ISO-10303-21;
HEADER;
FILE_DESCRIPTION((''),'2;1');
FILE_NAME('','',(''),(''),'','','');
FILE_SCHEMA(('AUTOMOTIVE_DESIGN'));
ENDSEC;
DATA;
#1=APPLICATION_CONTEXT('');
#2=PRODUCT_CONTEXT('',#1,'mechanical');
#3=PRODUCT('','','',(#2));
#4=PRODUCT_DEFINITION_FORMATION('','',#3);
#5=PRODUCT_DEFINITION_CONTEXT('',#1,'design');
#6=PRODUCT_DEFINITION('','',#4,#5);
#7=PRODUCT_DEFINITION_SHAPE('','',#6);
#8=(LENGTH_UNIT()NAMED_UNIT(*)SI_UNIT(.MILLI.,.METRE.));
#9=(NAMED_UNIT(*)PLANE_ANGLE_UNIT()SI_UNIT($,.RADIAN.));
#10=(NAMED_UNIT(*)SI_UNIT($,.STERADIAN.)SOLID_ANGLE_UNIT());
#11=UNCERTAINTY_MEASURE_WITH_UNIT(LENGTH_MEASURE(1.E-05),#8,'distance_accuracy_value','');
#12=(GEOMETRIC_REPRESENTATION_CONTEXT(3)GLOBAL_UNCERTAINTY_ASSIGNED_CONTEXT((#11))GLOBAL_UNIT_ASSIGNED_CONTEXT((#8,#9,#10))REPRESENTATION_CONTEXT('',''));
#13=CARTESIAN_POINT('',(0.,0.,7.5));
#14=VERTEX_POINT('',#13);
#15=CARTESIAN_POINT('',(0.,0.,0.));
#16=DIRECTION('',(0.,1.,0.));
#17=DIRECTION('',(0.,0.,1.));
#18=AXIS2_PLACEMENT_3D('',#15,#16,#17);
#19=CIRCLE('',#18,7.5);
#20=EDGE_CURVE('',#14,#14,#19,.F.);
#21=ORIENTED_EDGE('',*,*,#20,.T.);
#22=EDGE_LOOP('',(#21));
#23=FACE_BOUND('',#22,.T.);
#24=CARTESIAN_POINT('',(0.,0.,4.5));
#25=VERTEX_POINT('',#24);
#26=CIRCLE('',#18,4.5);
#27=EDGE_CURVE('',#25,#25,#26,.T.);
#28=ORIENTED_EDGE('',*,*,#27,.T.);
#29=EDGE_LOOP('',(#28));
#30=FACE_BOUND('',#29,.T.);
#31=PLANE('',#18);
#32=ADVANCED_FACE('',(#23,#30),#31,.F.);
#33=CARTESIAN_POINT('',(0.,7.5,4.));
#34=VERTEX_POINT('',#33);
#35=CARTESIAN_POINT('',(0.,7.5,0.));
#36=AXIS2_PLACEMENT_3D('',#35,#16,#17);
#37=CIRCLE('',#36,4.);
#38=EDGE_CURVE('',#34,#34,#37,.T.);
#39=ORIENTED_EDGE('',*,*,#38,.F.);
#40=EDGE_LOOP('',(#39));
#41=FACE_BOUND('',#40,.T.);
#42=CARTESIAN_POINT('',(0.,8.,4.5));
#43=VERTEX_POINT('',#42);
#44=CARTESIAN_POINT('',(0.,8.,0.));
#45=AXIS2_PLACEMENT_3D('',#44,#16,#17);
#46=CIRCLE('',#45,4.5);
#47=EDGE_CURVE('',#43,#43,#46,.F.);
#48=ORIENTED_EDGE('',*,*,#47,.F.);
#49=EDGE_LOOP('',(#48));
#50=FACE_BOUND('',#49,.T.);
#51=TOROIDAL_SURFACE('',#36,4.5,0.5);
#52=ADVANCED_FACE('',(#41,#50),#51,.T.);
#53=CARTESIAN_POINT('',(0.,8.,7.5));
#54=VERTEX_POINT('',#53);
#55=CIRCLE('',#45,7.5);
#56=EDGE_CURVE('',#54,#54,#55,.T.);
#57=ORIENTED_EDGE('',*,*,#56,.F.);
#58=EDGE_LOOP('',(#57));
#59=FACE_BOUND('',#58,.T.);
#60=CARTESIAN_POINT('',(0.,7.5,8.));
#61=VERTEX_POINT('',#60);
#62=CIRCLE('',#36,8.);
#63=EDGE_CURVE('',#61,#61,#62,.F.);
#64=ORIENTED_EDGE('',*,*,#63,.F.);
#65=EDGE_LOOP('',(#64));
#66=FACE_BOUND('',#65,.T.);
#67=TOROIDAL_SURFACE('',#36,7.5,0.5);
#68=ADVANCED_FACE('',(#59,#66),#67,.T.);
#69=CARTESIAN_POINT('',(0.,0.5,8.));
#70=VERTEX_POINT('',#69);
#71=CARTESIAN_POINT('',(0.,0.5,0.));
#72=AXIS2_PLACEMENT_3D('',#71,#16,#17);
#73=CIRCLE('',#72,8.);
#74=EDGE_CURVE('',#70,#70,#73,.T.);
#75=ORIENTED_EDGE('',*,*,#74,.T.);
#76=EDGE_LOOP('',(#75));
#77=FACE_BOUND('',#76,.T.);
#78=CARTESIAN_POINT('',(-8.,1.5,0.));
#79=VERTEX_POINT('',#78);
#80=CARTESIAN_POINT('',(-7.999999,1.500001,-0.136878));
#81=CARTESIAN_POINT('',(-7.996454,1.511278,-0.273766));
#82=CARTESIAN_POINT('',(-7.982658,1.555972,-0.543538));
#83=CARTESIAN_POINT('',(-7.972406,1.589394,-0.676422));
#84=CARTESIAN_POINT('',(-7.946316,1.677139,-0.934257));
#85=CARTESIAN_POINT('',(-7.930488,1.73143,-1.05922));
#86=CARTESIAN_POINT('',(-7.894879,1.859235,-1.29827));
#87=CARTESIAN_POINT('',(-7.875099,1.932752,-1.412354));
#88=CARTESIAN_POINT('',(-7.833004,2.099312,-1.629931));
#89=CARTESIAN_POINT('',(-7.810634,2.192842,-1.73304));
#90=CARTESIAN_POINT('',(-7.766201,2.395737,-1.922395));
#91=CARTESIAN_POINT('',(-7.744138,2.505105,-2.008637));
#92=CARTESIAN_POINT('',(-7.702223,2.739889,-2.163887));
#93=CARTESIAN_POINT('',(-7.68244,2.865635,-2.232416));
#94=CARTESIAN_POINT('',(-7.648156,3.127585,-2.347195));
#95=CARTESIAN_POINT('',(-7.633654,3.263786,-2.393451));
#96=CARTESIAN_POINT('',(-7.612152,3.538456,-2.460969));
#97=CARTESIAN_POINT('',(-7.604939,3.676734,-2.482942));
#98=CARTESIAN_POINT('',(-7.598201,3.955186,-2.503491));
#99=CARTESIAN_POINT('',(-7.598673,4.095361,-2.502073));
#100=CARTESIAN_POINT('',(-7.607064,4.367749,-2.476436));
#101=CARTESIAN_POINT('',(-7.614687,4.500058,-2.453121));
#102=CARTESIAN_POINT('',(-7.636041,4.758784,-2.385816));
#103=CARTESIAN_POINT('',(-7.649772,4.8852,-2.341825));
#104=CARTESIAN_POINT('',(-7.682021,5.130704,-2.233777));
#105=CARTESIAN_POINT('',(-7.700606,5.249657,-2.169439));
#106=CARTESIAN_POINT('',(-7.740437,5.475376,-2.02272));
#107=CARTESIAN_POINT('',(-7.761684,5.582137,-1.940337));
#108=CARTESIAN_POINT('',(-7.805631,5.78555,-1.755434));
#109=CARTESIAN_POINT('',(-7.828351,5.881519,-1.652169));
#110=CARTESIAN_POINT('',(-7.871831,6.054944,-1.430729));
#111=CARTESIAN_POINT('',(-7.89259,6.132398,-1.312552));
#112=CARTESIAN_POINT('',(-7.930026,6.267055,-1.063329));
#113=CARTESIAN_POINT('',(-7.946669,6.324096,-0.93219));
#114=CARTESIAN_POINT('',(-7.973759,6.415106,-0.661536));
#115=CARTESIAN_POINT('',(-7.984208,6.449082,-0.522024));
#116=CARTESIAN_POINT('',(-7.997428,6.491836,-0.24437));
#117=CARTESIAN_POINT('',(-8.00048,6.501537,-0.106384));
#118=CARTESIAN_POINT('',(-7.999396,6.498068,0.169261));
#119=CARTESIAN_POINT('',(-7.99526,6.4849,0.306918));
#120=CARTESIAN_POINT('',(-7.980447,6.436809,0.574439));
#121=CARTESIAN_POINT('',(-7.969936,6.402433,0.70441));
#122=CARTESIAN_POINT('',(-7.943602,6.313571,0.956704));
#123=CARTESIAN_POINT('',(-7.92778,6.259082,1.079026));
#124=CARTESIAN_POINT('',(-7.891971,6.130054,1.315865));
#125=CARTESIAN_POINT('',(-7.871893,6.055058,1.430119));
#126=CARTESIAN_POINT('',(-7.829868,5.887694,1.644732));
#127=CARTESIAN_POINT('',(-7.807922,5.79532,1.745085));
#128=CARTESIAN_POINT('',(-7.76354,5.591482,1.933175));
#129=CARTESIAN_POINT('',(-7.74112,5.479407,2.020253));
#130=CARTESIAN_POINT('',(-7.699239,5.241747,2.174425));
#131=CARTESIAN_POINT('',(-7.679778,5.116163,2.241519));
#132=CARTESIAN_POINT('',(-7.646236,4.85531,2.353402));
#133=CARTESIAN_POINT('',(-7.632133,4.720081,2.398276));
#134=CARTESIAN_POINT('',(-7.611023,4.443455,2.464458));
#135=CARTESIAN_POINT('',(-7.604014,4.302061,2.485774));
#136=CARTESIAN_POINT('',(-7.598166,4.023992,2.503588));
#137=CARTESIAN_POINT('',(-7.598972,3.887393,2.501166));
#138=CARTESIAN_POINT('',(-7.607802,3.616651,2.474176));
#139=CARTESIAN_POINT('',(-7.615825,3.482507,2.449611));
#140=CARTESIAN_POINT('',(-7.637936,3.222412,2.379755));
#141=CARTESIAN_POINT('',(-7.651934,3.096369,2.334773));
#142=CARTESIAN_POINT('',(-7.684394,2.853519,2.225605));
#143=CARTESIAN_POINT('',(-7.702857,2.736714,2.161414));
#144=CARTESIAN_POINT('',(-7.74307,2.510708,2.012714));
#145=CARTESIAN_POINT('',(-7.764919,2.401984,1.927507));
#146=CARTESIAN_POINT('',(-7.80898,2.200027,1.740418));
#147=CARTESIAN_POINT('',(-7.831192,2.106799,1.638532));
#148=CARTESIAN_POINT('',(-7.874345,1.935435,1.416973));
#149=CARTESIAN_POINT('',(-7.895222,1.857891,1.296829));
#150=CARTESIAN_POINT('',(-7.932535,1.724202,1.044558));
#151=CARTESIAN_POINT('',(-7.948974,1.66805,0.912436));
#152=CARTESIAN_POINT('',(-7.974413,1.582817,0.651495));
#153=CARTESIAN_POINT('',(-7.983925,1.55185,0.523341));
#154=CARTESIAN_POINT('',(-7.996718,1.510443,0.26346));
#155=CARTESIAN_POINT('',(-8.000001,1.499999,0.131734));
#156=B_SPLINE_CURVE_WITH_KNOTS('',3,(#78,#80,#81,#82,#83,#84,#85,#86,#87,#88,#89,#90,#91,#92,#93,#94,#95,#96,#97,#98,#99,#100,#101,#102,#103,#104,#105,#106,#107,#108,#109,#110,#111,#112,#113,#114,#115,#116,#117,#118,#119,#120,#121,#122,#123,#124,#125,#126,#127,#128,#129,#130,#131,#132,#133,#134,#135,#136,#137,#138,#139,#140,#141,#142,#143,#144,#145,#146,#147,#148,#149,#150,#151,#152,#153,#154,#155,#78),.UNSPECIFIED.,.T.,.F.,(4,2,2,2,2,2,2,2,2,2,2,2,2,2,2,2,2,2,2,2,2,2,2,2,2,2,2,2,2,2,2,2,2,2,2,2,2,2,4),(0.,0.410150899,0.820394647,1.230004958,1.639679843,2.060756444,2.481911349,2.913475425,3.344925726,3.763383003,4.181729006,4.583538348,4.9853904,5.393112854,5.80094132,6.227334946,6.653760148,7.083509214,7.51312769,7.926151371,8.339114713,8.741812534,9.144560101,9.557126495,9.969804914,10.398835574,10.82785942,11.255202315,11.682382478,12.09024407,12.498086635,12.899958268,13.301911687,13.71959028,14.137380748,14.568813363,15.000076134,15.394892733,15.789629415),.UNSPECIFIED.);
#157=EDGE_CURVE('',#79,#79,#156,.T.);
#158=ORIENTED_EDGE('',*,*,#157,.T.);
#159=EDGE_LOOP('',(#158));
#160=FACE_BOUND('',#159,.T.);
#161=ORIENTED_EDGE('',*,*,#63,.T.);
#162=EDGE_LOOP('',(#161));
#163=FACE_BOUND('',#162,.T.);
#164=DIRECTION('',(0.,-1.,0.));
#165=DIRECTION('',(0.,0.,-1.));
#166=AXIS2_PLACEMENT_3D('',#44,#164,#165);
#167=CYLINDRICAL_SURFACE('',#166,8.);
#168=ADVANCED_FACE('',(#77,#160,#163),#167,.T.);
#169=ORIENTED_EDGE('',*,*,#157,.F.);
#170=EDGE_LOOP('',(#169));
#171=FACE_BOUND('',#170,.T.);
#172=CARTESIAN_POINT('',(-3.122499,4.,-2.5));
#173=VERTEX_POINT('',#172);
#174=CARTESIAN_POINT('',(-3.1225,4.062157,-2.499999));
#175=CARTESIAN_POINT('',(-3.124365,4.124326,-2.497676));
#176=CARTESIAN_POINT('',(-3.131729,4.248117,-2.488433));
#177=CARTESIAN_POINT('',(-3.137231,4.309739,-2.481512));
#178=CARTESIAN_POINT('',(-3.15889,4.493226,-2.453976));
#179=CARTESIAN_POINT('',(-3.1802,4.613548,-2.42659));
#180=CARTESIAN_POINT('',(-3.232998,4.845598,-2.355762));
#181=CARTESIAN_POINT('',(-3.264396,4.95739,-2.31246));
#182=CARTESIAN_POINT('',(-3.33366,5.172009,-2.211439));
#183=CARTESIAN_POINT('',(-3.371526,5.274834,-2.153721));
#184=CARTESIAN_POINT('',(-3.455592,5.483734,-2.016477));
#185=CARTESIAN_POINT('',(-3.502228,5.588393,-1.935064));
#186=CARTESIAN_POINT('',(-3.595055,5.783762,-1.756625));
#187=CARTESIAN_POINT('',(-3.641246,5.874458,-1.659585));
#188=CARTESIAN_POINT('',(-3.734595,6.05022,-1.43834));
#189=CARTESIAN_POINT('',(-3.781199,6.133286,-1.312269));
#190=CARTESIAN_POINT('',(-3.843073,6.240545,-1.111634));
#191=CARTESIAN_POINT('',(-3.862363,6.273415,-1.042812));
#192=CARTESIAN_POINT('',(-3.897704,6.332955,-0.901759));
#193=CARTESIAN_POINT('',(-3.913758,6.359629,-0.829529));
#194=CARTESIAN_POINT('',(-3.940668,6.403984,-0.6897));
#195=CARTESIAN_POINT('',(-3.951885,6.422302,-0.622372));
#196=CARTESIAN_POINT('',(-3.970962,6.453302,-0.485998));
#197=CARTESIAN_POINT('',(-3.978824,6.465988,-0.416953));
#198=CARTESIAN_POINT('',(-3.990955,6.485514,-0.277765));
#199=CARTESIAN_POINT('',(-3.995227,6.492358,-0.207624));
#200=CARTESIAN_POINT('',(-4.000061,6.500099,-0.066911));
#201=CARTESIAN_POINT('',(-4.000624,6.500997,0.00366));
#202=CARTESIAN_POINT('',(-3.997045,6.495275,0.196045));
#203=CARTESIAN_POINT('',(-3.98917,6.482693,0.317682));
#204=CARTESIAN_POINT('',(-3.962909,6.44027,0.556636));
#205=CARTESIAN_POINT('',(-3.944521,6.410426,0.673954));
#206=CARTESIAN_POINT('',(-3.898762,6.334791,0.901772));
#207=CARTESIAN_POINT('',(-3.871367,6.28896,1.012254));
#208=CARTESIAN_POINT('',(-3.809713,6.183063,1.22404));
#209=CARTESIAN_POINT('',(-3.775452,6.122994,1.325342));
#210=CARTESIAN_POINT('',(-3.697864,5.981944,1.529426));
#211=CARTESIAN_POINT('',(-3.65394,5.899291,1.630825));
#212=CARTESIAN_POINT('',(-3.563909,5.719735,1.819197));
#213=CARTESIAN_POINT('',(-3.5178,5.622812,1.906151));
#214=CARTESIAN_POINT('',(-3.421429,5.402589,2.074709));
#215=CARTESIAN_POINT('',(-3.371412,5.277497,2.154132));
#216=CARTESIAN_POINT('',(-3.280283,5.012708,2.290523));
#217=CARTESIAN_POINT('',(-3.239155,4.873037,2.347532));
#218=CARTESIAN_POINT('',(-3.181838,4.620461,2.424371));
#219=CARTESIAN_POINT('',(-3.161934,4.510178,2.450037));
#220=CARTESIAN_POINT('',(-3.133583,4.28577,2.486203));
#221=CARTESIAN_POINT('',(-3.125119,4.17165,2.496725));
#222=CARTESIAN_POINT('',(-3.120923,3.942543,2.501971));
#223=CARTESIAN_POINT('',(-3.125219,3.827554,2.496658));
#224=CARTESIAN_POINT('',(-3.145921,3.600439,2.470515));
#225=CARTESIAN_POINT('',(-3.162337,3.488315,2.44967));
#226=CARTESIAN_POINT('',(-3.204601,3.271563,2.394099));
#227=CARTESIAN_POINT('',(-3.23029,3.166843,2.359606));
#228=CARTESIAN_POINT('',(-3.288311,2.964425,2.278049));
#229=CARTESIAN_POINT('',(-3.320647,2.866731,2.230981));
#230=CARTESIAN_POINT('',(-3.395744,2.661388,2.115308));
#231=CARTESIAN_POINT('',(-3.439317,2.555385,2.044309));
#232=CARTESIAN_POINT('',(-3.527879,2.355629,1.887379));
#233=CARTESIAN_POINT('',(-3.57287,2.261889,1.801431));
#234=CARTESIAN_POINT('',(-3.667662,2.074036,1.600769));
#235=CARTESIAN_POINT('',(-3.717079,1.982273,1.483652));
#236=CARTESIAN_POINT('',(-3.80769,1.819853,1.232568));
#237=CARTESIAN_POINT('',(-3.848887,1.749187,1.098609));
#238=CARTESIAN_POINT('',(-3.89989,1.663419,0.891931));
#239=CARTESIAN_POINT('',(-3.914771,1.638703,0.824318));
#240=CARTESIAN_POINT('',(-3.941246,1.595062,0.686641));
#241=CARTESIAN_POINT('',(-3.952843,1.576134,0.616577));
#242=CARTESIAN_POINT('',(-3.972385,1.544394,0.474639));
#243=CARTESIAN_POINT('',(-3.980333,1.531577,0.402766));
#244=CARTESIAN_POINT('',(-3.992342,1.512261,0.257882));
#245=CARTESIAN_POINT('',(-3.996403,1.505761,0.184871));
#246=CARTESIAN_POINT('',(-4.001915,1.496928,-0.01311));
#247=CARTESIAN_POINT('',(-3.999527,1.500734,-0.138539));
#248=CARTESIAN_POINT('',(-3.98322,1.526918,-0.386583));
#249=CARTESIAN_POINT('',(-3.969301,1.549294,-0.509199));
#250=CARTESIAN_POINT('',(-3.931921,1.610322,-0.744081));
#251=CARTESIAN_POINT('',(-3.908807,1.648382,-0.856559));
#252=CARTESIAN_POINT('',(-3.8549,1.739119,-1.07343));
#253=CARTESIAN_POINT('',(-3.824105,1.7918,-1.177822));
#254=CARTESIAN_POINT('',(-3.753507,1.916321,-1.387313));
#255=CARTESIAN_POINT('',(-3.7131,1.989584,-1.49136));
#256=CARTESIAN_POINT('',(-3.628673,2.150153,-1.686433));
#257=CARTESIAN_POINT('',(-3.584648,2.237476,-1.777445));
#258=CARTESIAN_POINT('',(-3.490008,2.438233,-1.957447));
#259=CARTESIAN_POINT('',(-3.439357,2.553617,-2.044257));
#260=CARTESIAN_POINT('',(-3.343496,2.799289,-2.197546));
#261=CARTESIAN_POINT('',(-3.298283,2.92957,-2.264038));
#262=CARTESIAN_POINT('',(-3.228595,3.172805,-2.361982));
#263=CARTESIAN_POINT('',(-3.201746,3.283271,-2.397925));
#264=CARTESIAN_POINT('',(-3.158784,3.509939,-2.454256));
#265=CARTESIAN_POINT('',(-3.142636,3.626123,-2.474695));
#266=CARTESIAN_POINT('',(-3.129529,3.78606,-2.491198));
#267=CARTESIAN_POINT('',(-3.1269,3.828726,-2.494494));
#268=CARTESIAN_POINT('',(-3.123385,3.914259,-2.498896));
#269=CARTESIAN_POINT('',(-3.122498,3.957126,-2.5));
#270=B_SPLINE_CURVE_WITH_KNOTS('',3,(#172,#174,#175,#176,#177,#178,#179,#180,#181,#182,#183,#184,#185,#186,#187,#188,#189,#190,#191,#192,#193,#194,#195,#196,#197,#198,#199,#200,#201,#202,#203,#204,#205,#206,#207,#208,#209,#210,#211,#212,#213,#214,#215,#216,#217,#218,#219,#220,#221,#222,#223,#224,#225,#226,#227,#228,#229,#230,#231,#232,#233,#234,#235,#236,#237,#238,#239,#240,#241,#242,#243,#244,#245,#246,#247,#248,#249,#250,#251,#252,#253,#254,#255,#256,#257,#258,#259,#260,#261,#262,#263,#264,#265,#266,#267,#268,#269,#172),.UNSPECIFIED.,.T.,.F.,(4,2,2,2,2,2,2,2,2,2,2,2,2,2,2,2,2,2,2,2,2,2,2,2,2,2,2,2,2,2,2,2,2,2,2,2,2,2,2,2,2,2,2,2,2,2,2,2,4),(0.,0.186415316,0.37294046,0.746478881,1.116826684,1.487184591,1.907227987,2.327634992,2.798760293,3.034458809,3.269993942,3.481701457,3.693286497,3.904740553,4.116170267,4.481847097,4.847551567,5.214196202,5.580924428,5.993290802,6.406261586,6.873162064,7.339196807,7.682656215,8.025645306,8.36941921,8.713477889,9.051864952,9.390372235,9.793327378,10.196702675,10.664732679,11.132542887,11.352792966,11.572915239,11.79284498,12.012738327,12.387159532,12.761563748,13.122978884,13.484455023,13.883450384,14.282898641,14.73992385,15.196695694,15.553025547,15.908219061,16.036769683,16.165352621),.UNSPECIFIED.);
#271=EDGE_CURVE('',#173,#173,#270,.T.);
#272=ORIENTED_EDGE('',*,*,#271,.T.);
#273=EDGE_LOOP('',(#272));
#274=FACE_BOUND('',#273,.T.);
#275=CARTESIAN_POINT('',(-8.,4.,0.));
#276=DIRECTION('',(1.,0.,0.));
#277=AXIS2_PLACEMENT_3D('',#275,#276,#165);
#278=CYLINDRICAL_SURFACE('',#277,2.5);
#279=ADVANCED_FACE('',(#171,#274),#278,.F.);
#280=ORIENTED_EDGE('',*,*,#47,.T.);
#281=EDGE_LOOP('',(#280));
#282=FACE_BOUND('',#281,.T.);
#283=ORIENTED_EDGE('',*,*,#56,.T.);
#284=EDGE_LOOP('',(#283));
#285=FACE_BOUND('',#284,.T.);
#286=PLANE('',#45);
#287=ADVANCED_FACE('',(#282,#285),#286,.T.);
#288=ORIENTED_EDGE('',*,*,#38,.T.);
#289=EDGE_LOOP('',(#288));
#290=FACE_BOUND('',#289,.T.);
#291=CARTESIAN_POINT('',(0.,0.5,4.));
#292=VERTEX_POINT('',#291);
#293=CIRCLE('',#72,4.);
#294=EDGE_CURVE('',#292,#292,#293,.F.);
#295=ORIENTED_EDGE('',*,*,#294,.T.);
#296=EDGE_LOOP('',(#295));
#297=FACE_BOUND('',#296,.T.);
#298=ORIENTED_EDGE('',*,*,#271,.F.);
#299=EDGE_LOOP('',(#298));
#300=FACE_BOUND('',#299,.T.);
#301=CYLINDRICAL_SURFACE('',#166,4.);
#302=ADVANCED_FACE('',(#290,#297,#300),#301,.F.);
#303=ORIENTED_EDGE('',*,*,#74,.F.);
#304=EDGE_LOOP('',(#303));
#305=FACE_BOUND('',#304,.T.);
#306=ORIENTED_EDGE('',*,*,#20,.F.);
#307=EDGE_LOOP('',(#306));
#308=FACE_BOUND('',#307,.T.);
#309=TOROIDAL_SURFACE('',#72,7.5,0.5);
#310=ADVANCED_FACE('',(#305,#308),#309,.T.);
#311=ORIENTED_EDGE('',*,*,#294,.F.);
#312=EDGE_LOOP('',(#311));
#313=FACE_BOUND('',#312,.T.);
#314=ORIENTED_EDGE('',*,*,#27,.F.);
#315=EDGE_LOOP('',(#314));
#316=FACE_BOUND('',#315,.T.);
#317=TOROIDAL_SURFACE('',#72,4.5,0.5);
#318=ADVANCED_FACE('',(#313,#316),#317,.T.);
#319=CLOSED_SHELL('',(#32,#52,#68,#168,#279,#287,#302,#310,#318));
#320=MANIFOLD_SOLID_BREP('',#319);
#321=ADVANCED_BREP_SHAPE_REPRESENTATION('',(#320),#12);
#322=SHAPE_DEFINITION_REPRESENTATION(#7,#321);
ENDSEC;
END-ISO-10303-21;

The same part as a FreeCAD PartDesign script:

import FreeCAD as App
import Part
import Sketcher

V = App.Vector
Q = App.Units.Quantity


def edges_at(feature, points):
    """Names of the edges that pass closest to the given points."""
    edges = feature.Shape.Edges
    near = lambda p: min(range(len(edges)), key=lambda i: edges[i].distToShape(Part.Vertex(*p))[0])
    return sorted({f"Edge{near(p) + 1}" for p in points})

doc = App.newDocument("Part")
body = doc.addObject("PartDesign::Body", "Body")

# Sketch on XZ plane
sketch1 = doc.addObject("Sketcher::SketchObject", "Sketch")
body.addObject(sketch1)
sketch1.AttachmentSupport = (doc.XZ_Plane, [""])
sketch1.MapMode = "FlatFace"
sketch1.addGeometry([
    Part.Circle(V(0, 0, 0), V(0, 0, 1), 8),
    Part.Circle(V(0, 0, 0), V(0, 0, 1), 4),
], False)
sketch1.addConstraint([
    Sketcher.Constraint("Coincident", 0, 3, -1, 1),
    Sketcher.Constraint("Coincident", 1, 3, -1, 1),
    Sketcher.Constraint("Diameter", 0, Q("16 mm")),
    Sketcher.Constraint("Diameter", 1, Q("8 mm")),
])
pad1 = doc.addObject("PartDesign::Pad", "Pad")
body.addObject(pad1)
pad1.Profile = sketch1
pad1.Length = 8
pad1.Reversed = True

# Sketch on YZ plane
sketch2 = doc.addObject("Sketcher::SketchObject", "Sketch001")
body.addObject(sketch2)
sketch2.AttachmentSupport = (doc.YZ_Plane, [""])
sketch2.MapMode = "FlatFace"
sketch2.addGeometry(Part.Circle(V(4, 0, 0), V(0, 0, 1), 2.5), False)
sketch2.addConstraint([
    Sketcher.Constraint("PointOnObject", 0, 3, -1),
    Sketcher.Constraint("Diameter", 0, Q("5 mm")),
    Sketcher.Constraint("DistanceX", -1, 1, 0, 3, Q("4 mm")),
])
pocket1 = doc.addObject("PartDesign::Pocket", "Pocket")
body.addObject(pocket1)
pocket1.Profile = sketch2
pocket1.Length = 8
doc.recompute()

fillet = doc.addObject("PartDesign::Fillet", "Fillet")
body.addObject(fillet)
fillet.Base = (pocket1, edges_at(pocket1, [
    (0, 0, -8),
    (0, 8, -8),
    (0, 0, -4),
    (0, 8, -4),
]))
fillet.Radius = 0.5

doc.recompute()
